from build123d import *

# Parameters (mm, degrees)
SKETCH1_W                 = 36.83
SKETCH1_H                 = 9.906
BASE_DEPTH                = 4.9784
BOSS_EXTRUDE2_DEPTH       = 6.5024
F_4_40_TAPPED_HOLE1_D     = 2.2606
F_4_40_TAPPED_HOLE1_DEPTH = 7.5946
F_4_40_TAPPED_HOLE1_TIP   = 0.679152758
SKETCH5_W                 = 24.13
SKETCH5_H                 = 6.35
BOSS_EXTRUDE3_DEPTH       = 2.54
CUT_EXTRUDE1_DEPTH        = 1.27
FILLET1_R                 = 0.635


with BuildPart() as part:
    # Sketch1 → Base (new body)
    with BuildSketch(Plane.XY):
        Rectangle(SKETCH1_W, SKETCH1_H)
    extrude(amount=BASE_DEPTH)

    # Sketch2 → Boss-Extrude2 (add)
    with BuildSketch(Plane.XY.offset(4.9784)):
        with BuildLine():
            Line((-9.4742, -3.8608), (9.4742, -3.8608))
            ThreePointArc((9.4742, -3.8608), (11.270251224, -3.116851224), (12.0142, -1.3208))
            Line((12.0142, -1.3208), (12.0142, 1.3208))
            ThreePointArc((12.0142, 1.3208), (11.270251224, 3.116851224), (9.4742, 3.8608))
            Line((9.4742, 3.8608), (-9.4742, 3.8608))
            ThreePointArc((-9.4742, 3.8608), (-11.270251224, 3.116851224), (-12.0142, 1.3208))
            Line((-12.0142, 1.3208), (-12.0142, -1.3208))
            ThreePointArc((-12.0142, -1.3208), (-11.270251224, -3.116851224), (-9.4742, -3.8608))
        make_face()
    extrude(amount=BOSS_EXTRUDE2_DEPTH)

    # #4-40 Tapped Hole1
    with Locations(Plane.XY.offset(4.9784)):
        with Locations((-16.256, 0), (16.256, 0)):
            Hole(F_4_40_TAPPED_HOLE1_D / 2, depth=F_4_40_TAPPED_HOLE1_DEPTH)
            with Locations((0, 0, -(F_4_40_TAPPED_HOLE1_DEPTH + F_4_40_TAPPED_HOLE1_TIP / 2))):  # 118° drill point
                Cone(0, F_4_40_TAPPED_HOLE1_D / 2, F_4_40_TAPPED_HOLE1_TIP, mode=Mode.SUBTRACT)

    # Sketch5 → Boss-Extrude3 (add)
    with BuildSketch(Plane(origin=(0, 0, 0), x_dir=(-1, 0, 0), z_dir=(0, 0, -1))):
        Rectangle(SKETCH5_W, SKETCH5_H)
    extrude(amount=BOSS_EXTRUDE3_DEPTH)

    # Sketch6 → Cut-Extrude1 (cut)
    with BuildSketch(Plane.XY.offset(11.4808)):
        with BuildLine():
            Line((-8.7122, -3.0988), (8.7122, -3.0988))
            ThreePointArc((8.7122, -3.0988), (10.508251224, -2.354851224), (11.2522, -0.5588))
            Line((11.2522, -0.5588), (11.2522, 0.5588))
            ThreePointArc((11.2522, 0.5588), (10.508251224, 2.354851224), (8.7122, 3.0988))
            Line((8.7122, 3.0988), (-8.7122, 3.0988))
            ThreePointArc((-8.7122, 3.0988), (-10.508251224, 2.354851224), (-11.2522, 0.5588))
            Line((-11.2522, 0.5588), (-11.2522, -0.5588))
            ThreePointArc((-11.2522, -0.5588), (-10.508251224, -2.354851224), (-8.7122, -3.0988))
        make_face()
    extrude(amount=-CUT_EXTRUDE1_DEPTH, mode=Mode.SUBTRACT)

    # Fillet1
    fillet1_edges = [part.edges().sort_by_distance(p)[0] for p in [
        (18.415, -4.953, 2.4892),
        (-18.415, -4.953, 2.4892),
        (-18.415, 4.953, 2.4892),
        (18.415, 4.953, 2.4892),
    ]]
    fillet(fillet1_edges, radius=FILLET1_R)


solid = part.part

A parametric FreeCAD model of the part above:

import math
import FreeCAD as App
import Part
import Sketcher
from FreeCAD import Vector
Q = App.Units.Quantity


def edges_at(feature, points):
    """Names of the edges that pass closest to the given points."""
    edges = feature.Shape.Edges
    near = lambda p: min(range(len(edges)), key=lambda i: edges[i].distToShape(Part.Vertex(*p))[0])
    return sorted({f"Edge{near(p) + 1}" for p in points})


def add_polygon(sketch, points):
    """Adds a closed chain of lines whose ends are joined by coincident constraints."""
    first, n = sketch.GeometryCount, len(points)
    for a, b in zip(points, points[1:] + points[:1]):
        sketch.addGeometry(Part.LineSegment(App.Vector(*a, 0), App.Vector(*b, 0)), False)
    for i in range(n):
        sketch.addConstraint(Sketcher.Constraint("Coincident", first + i, 2, first + (i + 1) % n, 1))

doc = App.newDocument("Part")
body = doc.addObject("PartDesign::Body", "Body")

# Sketch on XY plane
sketch1 = doc.addObject("Sketcher::SketchObject", "Sketch")
body.addObject(sketch1)
sketch1.AttachmentSupport = (doc.XY_Plane, [""])
sketch1.MapMode = "FlatFace"
add_polygon(sketch1, [(-18, 5), (-18, -5), (18, -5), (18, 5)])  # lines 0-3
sketch1.addConstraint([
    Sketcher.Constraint("Vertical", 0),
    Sketcher.Constraint("Horizontal", 1),
    Sketcher.Constraint("Vertical", 2),
    Sketcher.Constraint("Horizontal", 3),
    Sketcher.Constraint("Symmetric", 0, 2, 2, 2, -1, 1),
    Sketcher.Constraint("DistanceX", 1, 1, 1, 2, Q("1.45 in")),
    Sketcher.Constraint("DistanceY", 0, 2, 0, 1, Q("0.39 in")),
])
pad1 = doc.addObject("PartDesign::Pad", "Pad")
body.addObject(pad1)
pad1.Profile = sketch1
pad1.Length = Q("0.196 in")

# Sketch on XY plane
sketch2 = doc.addObject("Sketcher::SketchObject", "Sketch001")
body.addObject(sketch2)
sketch2.AttachmentSupport = (doc.XY_Plane, [""])
sketch2.MapMode = "FlatFace"
sketch2.AttachmentOffset = App.Placement(Vector(0, 0, 0.196 * 25.4), App.Rotation())
sketch2.addGeometry([
    Part.LineSegment(Vector(-9.5, -3.9, 0), Vector(9.5, -3.9, 0)),  # 0
    Part.ArcOfCircle(Part.Circle(Vector(9.5, -1.3, 0), Vector(0, 0, 1), 2.5), math.radians(-90), math.radians(0)),  # 1
    Part.LineSegment(Vector(12, -1.3, 0), Vector(12, 1.3, 0)),  # 2
    Part.ArcOfCircle(Part.Circle(Vector(9.5, 1.3, 0), Vector(0, 0, 1), 2.5), math.radians(0), math.radians(90)),  # 3
    Part.LineSegment(Vector(9.5, 3.9, 0), Vector(-9.5, 3.9, 0)),  # 4
    Part.ArcOfCircle(Part.Circle(Vector(-9.5, 1.3, 0), Vector(0, 0, 1), 2.5), math.radians(90), math.radians(180)),  # 5
    Part.LineSegment(Vector(-12, 1.3, 0), Vector(-12, -1.3, 0)),  # 6
    Part.ArcOfCircle(Part.Circle(Vector(-9.5, -1.3, 0), Vector(0, 0, 1), 2.5), math.radians(-180), math.radians(-90)),  # 7
], False)
sketch2.addConstraint([
    Sketcher.Constraint("Tangent", 0, 2, 1, 1),
    Sketcher.Constraint("Tangent", 1, 2, 2, 1),
    Sketcher.Constraint("Tangent", 2, 2, 3, 1),
    Sketcher.Constraint("Tangent", 3, 2, 4, 1),
    Sketcher.Constraint("Tangent", 4, 2, 5, 1),
    Sketcher.Constraint("Tangent", 5, 2, 6, 1),
    Sketcher.Constraint("Tangent", 6, 2, 7, 1),
    Sketcher.Constraint("Tangent", 7, 2, 0, 1),
    Sketcher.Constraint("Horizontal", 0),
    Sketcher.Constraint("Vertical", 2),
    Sketcher.Constraint("Horizontal", 4),
    Sketcher.Constraint("Vertical", 6),
    Sketcher.Constraint("Equal", 1, 3),
    Sketcher.Constraint("Equal", 3, 5),
    Sketcher.Constraint("Equal", 5, 7),
    Sketcher.Constraint("Symmetric", 1, 3, 5, 3, -1, 1),
    Sketcher.Constraint("Radius", 1, Q("0.1 in")),
    Sketcher.Constraint("DistanceX", 0, 1, 0, 2, Q("0.746 in")),
    Sketcher.Constraint("DistanceY", 2, 1, 2, 2, Q("0.104 in")),
])
pad2 = doc.addObject("PartDesign::Pad", "Pad001")
body.addObject(pad2)
pad2.Profile = sketch2
pad2.Length = Q("0.256 in")

# Sketch on XY plane
sketch3 = doc.addObject("Sketcher::SketchObject", "Sketch002")
body.addObject(sketch3)
sketch3.AttachmentSupport = (doc.XY_Plane, [""])
sketch3.MapMode = "FlatFace"
sketch3.AttachmentOffset = App.Placement(Vector(0, 0, 0.196 * 25.4), App.Rotation())
sketch3.addGeometry([
    Part.Circle(Vector(-16.3, 0, 0), Vector(0, 0, 1), 1.1),
    Part.Circle(Vector(16.3, 0, 0), Vector(0, 0, 1), 1.1),
], False)
sketch3.addConstraint([
    Sketcher.Constraint("Equal", 0, 1),
    Sketcher.Constraint("Symmetric", 0, 3, 1, 3, -1, 1),
    Sketcher.Constraint("PointOnObject", 0, 3, -1),
    Sketcher.Constraint("Diameter", 0, Q("0.089 in")),
    Sketcher.Constraint("DistanceX", 0, 3, -1, 1, Q("0.64 in")),
])
doc.recompute()
hole = doc.addObject("PartDesign::Hole", "Hole")
body.addObject(hole)
hole.Profile = sketch3
hole.ThreadType = "None"
hole.Diameter = Q("0.089 in")
hole.DepthType = "Dimension"
hole.Depth = Q("0.299 in")
hole.DrillPoint = "Angled"
hole.DrillPointAngle = 118

# Sketch on XY plane
sketch4 = doc.addObject("Sketcher::SketchObject", "Sketch003")
body.addObject(sketch4)
sketch4.AttachmentSupport = (doc.XY_Plane, [""])
sketch4.MapMode = "FlatFace"
add_polygon(sketch4, [(12, 3), (12, -3), (-12, -3), (-12, 3)])  # lines 0-3
sketch4.addConstraint([
    Sketcher.Constraint("Vertical", 0),
    Sketcher.Constraint("Horizontal", 1),
    Sketcher.Constraint("Vertical", 2),
    Sketcher.Constraint("Horizontal", 3),
    Sketcher.Constraint("Symmetric", 0, 2, 2, 2, -1, 1),
    Sketcher.Constraint("DistanceX", 1, 2, 1, 1, Q("0.95 in")),
    Sketcher.Constraint("DistanceY", 0, 2, 0, 1, Q("0.25 in")),
])
pad3 = doc.addObject("PartDesign::Pad", "Pad002")
body.addObject(pad3)
pad3.Profile = sketch4
pad3.Length = Q("0.1 in")
pad3.Reversed = True

# Sketch on XY plane
sketch5 = doc.addObject("Sketcher::SketchObject", "Sketch004")
body.addObject(sketch5)
sketch5.AttachmentSupport = (doc.XY_Plane, [""])
sketch5.MapMode = "FlatFace"
sketch5.AttachmentOffset = App.Placement(Vector(0, 0, 0.452 * 25.4), App.Rotation())
sketch5.addGeometry([
    Part.LineSegment(Vector(-8.7, -3.1, 0), Vector(8.7, -3.1, 0)),  # 0
    Part.ArcOfCircle(Part.Circle(Vector(8.7, -0.6, 0), Vector(0, 0, 1), 2.5), math.radians(-90), math.radians(0)),  # 1
    Part.LineSegment(Vector(11.3, -0.6, 0), Vector(11.3, 0.6, 0)),  # 2
    Part.ArcOfCircle(Part.Circle(Vector(8.7, 0.6, 0), Vector(0, 0, 1), 2.5), math.radians(0), math.radians(90)),  # 3
    Part.LineSegment(Vector(8.7, 3.1, 0), Vector(-8.7, 3.1, 0)),  # 4
    Part.ArcOfCircle(Part.Circle(Vector(-8.7, 0.6, 0), Vector(0, 0, 1), 2.5), math.radians(90), math.radians(180)),  # 5
    Part.LineSegment(Vector(-11.3, 0.6, 0), Vector(-11.3, -0.6, 0)),  # 6
    Part.ArcOfCircle(Part.Circle(Vector(-8.7, -0.6, 0), Vector(0, 0, 1), 2.5), math.radians(-180), math.radians(-90)),  # 7
], False)
sketch5.addConstraint([
    Sketcher.Constraint("Tangent", 0, 2, 1, 1),
    Sketcher.Constraint("Tangent", 1, 2, 2, 1),
    Sketcher.Constraint("Tangent", 2, 2, 3, 1),
    Sketcher.Constraint("Tangent", 3, 2, 4, 1),
    Sketcher.Constraint("Tangent", 4, 2, 5, 1),
    Sketcher.Constraint("Tangent", 5, 2, 6, 1),
    Sketcher.Constraint("Tangent", 6, 2, 7, 1),
    Sketcher.Constraint("Tangent", 7, 2, 0, 1),
    Sketcher.Constraint("Horizontal", 0),
    Sketcher.Constraint("Vertical", 2),
    Sketcher.Constraint("Horizontal", 4),
    Sketcher.Constraint("Vertical", 6),
    Sketcher.Constraint("Equal", 1, 3),
    Sketcher.Constraint("Equal", 3, 5),
    Sketcher.Constraint("Equal", 5, 7),
    Sketcher.Constraint("Symmetric", 1, 3, 5, 3, -1, 1),
    Sketcher.Constraint("Radius", 1, Q("0.1 in")),
    Sketcher.Constraint("DistanceX", 0, 1, 0, 2, Q("0.686 in")),
    Sketcher.Constraint("DistanceY", 2, 1, 2, 2, Q("0.044 in")),
])
pocket1 = doc.addObject("PartDesign::Pocket", "Pocket")
body.addObject(pocket1)
pocket1.Profile = sketch5
pocket1.Length = Q("0.05 in")
doc.recompute()

fillet = doc.addObject("PartDesign::Fillet", "Fillet")
body.addObject(fillet)
fillet.Base = (pocket1, edges_at(pocket1, [
    (18.415, -4.953, 2.489),
    (-18.415, -4.953, 2.489),
    (-18.415, 4.953, 2.489),
    (18.415, 4.953, 2.489),
]))
fillet.Radius = Q("0.025 in")

doc.recompute()
